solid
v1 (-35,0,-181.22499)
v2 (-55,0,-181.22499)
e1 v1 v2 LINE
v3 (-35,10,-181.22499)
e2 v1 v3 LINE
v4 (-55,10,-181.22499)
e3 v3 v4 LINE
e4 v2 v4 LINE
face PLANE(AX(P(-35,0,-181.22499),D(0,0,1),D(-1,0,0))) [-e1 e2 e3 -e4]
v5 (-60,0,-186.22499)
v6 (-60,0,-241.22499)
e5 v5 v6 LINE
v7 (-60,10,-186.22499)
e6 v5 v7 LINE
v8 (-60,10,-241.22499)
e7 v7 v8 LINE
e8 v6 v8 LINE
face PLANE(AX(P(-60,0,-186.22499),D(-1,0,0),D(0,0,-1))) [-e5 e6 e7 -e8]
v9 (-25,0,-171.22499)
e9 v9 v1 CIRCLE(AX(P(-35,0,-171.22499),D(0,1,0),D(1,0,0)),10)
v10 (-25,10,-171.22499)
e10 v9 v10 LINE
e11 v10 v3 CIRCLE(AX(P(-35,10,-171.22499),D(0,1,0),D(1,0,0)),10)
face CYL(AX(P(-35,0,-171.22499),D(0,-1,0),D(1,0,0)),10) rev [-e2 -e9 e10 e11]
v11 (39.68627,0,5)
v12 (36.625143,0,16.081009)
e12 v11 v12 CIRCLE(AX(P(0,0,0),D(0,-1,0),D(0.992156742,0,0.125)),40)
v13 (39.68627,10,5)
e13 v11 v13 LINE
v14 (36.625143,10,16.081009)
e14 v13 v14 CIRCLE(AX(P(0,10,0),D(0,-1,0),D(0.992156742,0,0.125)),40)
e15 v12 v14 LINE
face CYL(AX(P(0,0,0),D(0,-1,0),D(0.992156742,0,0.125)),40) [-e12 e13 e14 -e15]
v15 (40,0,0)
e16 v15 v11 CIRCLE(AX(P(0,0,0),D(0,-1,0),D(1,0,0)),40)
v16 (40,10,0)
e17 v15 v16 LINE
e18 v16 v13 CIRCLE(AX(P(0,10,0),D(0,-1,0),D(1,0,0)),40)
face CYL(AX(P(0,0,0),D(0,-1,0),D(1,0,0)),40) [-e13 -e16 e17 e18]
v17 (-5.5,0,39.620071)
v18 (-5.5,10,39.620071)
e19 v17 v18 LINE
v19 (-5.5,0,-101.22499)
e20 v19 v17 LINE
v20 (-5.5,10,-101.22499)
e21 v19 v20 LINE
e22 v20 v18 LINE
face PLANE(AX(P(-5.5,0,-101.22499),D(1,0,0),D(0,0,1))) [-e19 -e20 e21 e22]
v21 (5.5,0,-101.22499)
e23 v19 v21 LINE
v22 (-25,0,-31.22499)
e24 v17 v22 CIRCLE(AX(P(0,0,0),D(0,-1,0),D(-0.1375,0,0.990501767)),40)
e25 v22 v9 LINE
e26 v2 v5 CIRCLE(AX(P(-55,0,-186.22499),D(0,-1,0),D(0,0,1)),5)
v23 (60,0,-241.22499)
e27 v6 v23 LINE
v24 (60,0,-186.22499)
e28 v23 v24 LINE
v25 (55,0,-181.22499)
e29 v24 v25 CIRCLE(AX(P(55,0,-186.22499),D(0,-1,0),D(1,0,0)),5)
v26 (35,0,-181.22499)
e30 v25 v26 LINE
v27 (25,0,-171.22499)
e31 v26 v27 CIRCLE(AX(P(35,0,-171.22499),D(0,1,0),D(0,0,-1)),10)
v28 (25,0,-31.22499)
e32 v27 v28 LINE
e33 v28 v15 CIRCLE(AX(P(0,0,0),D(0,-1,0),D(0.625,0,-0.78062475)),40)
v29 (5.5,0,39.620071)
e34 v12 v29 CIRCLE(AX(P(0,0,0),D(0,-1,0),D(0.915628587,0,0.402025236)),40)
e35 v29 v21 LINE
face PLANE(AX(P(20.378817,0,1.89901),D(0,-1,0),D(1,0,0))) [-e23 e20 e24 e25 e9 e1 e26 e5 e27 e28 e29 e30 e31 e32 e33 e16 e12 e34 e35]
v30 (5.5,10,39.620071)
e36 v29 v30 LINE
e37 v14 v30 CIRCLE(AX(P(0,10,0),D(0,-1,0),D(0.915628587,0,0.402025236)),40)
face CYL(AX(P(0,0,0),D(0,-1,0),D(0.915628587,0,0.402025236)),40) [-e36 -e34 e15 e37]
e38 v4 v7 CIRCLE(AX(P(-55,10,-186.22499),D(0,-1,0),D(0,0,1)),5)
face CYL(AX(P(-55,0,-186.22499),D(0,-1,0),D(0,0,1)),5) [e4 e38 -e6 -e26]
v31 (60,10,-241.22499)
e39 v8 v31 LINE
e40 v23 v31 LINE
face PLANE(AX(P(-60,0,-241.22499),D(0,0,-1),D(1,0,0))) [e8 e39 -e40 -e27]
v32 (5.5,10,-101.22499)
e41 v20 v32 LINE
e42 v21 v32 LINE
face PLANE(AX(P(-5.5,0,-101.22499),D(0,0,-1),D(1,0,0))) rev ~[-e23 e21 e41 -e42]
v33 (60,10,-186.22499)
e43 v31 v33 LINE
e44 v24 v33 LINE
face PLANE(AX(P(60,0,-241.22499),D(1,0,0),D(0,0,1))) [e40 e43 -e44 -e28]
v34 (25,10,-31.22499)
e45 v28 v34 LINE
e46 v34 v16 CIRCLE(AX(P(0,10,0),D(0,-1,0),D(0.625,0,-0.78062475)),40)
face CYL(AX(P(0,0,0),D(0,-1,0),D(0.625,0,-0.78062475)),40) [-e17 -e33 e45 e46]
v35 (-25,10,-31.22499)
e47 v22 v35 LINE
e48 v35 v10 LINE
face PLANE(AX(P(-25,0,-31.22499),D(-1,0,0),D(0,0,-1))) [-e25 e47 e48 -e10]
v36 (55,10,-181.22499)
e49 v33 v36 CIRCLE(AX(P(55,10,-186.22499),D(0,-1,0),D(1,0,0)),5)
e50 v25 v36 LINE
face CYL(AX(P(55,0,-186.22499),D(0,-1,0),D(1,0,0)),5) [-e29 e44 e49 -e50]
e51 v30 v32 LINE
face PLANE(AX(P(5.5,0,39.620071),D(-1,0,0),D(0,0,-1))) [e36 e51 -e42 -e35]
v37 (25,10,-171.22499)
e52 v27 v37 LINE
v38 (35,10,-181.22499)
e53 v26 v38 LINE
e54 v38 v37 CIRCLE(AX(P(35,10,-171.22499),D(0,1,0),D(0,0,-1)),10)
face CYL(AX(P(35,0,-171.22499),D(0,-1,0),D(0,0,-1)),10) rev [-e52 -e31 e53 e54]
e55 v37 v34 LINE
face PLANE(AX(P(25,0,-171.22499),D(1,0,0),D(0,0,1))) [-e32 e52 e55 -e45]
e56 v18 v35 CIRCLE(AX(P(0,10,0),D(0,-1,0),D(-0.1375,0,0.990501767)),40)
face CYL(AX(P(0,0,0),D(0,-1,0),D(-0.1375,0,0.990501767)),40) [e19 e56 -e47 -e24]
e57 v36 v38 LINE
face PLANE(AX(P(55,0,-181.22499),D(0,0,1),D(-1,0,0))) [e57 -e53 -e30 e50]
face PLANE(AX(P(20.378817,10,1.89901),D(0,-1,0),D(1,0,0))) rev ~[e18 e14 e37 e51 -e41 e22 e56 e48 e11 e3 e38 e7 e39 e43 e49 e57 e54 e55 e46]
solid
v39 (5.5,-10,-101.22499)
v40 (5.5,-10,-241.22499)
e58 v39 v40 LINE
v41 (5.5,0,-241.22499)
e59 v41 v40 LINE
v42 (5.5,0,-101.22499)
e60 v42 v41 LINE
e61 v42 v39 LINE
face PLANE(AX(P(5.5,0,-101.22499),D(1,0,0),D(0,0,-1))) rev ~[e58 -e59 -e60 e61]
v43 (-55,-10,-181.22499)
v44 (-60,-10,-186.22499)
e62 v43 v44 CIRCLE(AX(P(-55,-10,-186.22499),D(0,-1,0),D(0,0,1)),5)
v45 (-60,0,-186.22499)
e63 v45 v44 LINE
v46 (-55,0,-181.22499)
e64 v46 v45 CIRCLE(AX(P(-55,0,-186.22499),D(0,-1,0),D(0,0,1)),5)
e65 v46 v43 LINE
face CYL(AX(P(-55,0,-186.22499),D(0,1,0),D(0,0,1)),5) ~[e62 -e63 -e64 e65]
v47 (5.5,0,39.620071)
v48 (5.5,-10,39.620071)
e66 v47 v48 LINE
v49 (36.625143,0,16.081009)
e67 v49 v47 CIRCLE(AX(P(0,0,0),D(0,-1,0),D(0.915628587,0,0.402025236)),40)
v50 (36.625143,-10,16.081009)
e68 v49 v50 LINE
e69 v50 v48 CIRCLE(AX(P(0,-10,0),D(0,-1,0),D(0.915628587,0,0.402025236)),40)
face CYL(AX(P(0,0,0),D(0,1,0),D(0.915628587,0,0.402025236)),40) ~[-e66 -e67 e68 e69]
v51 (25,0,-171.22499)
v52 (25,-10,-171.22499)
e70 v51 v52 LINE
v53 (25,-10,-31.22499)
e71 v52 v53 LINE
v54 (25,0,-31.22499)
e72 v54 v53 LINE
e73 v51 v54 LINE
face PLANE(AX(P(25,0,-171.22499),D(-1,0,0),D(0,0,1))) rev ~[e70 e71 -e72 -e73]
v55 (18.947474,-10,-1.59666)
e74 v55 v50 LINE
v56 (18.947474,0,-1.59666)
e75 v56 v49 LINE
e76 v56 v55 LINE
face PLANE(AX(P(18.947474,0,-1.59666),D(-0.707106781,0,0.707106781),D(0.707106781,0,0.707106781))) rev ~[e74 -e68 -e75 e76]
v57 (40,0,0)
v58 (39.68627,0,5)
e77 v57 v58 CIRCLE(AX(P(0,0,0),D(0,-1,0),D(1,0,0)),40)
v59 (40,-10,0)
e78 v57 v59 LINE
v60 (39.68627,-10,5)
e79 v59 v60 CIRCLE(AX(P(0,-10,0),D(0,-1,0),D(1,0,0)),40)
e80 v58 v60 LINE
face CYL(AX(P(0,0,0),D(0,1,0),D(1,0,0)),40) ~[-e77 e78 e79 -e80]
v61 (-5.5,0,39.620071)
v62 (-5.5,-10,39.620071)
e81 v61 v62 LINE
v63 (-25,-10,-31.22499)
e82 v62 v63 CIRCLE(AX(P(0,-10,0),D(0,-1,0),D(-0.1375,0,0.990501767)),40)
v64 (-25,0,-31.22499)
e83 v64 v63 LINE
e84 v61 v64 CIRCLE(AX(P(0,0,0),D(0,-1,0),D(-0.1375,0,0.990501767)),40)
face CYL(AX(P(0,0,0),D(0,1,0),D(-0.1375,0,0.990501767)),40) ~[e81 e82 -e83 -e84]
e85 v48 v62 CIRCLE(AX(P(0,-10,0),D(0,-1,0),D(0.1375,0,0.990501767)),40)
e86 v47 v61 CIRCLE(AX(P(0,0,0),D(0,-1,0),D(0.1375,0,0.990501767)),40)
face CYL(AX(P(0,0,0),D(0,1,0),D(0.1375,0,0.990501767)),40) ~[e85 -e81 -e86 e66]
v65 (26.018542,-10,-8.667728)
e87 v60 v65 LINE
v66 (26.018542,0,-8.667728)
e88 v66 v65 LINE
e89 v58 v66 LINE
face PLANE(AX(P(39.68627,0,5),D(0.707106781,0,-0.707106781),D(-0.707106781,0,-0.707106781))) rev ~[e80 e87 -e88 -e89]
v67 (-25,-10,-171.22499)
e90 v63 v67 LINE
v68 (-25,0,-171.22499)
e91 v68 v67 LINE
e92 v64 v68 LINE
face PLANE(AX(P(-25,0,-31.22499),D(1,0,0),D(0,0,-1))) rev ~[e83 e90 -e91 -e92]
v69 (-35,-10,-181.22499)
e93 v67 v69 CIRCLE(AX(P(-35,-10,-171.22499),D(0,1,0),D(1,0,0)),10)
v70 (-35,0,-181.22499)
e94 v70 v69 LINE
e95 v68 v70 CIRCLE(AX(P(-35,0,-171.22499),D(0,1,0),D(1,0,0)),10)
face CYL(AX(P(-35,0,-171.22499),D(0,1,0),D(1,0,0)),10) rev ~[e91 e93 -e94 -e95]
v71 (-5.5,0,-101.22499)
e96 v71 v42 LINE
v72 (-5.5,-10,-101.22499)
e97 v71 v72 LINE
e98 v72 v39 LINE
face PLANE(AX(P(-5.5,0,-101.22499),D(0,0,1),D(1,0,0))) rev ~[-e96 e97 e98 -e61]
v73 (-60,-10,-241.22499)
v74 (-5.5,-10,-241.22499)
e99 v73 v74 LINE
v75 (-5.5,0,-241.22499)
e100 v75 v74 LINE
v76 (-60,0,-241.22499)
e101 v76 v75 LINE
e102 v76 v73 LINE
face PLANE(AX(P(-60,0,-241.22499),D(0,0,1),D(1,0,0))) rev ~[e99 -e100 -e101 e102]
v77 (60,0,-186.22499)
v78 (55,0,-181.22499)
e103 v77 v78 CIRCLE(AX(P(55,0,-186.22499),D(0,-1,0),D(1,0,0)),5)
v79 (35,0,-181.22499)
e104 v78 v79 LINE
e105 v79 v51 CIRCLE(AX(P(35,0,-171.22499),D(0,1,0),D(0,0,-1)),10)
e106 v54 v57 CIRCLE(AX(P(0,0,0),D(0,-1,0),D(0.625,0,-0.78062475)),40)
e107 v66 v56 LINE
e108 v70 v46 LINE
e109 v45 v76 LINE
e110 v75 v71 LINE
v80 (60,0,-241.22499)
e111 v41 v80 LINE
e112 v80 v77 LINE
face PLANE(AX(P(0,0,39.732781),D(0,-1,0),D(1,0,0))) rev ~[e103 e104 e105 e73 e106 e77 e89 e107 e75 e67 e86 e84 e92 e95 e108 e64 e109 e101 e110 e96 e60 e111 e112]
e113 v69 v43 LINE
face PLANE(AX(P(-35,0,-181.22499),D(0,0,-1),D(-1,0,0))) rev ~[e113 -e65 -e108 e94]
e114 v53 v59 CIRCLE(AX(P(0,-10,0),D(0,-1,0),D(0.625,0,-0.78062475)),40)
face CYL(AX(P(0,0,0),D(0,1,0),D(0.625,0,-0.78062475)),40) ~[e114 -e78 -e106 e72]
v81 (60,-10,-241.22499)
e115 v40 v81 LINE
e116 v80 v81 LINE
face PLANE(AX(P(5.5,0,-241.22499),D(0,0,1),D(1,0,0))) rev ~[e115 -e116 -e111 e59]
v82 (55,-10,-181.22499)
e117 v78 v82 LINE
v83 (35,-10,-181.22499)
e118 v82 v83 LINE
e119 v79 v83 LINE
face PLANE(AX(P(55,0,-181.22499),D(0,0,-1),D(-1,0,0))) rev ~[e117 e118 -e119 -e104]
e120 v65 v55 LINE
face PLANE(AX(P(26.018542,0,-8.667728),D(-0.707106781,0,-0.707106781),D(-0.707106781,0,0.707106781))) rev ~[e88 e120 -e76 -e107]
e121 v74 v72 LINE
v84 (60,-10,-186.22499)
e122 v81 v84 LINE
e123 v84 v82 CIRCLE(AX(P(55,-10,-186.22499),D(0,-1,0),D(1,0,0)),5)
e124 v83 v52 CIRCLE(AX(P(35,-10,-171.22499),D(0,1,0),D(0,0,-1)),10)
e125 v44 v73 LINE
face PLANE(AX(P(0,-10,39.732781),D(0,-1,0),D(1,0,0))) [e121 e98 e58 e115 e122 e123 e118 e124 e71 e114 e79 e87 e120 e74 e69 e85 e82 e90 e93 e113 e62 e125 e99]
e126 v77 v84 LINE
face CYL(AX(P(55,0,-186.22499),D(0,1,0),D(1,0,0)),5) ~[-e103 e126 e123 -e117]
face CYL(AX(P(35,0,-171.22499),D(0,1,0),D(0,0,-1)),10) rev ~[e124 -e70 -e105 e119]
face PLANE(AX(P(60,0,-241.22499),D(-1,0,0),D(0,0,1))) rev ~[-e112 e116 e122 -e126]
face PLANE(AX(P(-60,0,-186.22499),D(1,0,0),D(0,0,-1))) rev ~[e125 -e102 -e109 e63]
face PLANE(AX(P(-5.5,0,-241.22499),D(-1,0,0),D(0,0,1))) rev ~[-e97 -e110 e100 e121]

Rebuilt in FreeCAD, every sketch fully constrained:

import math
import FreeCAD as App
import Part
import Sketcher
from FreeCAD import Vector
Q = App.Units.Quantity

doc = App.newDocument("Part")
body = doc.addObject("PartDesign::Body", "Body")

sketch1 = body.newObject("Sketcher::SketchObject", "Sketch")
sketch1.AttachmentSupport = (doc.getObject("XZ_Plane"), [""])
sketch1.MapMode = "FlatFace"
sketch1.addGeometry([
    Part.ArcOfCircle(Part.Circle(Vector(0, 0, 0), Vector(0, 0, 1), 40), math.radians(82.1), math.radians(97.9)),
    Part.ArcOfCircle(Part.Circle(Vector(0, 0, 0), Vector(0, 0, 1), 40), math.radians(98), math.radians(231)),
    Part.LineSegment(Vector(-25, -31, 0), Vector(-25, -171, 0)),
    Part.ArcOfCircle(Part.Circle(Vector(-35, -171, 0), Vector(0, 0, 1), 10), math.radians(-90), math.radians(0)),
    Part.LineSegment(Vector(-35, -181, 0), Vector(-55, -181, 0)),
    Part.ArcOfCircle(Part.Circle(Vector(-55, -186, 0), Vector(0, 0, 1), 5), math.radians(90), math.radians(180)),
    Part.LineSegment(Vector(-60, -186, 0), Vector(-60, -241, 0)),
    Part.LineSegment(Vector(-60, -241, 0), Vector(-6, -241, 0)),
    Part.LineSegment(Vector(-6, -241, 0), Vector(-6, -101, 0)),
    Part.LineSegment(Vector(-6, -101, 0), Vector(6, -101, 0)),
    Part.LineSegment(Vector(6, -101, 0), Vector(6, -241, 0)),
    Part.LineSegment(Vector(6, -241, 0), Vector(60, -241, 0)),
    Part.LineSegment(Vector(60, -241, 0), Vector(60, -186, 0)),
    Part.ArcOfCircle(Part.Circle(Vector(55, -186, 0), Vector(0, 0, 1), 5), math.radians(0), math.radians(90)),
    Part.LineSegment(Vector(55, -181, 0), Vector(35, -181, 0)),
    Part.ArcOfCircle(Part.Circle(Vector(35, -171, 0), Vector(0, 0, 1), 10), math.radians(180), math.radians(270)),
    Part.LineSegment(Vector(25, -171, 0), Vector(25, -31, 0)),
    Part.ArcOfCircle(Part.Circle(Vector(0, 0, 0), Vector(0, 0, 1), 40), math.radians(-51), math.radians(0)),
    Part.ArcOfCircle(Part.Circle(Vector(0, 0, 0), Vector(0, 0, 1), 40), math.radians(0), math.radians(7.18)),
    Part.LineSegment(Vector(40, 5, 0), Vector(26, -9, 0)),
    Part.LineSegment(Vector(26, -9, 0), Vector(19, -2, 0)),
    Part.LineSegment(Vector(19, -2, 0), Vector(37, 16, 0)),
    Part.ArcOfCircle(Part.Circle(Vector(0, 0, 0), Vector(0, 0, 1), 40), math.radians(24), math.radians(82)),
], False)
sketch1.addConstraint([
    Sketcher.Constraint("Tangent", 0, 2, 1, 1),
    Sketcher.Constraint("Coincident", 1, 2, 2, 1),
    Sketcher.Constraint("Tangent", 2, 2, 3, 2),
    Sketcher.Constraint("Tangent", 3, 1, 4, 1),
    Sketcher.Constraint("Tangent", 4, 2, 5, 1),
    Sketcher.Constraint("Tangent", 5, 2, 6, 1),
    Sketcher.Constraint("Coincident", 6, 2, 7, 1),
    Sketcher.Constraint("Coincident", 7, 2, 8, 1),
    Sketcher.Constraint("Coincident", 8, 2, 9, 1),
    Sketcher.Constraint("Coincident", 9, 2, 10, 1),
    Sketcher.Constraint("Coincident", 10, 2, 11, 1),
    Sketcher.Constraint("Coincident", 11, 2, 12, 1),
    Sketcher.Constraint("Tangent", 12, 2, 13, 1),
    Sketcher.Constraint("Tangent", 13, 2, 14, 1),
    Sketcher.Constraint("Tangent", 14, 2, 15, 2),
    Sketcher.Constraint("Tangent", 15, 1, 16, 1),
    Sketcher.Constraint("Coincident", 16, 2, 17, 1),
    Sketcher.Constraint("Tangent", 17, 2, 18, 1),
    Sketcher.Constraint("Coincident", 18, 2, 19, 1),
    Sketcher.Constraint("Coincident", 19, 2, 20, 1),
    Sketcher.Constraint("Coincident", 20, 2, 21, 1),
    Sketcher.Constraint("Coincident", 21, 2, 22, 1),
    Sketcher.Constraint("Tangent", 22, 2, 0, 1),
    Sketcher.Constraint("Vertical", 2),
    Sketcher.Constraint("Horizontal", 4),
    Sketcher.Constraint("Vertical", 6),
    Sketcher.Constraint("Horizontal", 7),
    Sketcher.Constraint("Vertical", 8),
    Sketcher.Constraint("Horizontal", 9),
    Sketcher.Constraint("Vertical", 10),
    Sketcher.Constraint("Horizontal", 11),
    Sketcher.Constraint("Vertical", 12),
    Sketcher.Constraint("Horizontal", 14),
    Sketcher.Constraint("Vertical", 16),
    Sketcher.Constraint("Coincident", 0, 3, -1, 1),
    Sketcher.Constraint("Coincident", 17, 3, -1, 1),
    Sketcher.Constraint("Equal", 0, 1),
    Sketcher.Constraint("Equal", 5, 13),
    Sketcher.Constraint("Equal", 3, 15),
    Sketcher.Constraint("Equal", 1, 17),
    Sketcher.Constraint("Equal", 17, 18),
    Sketcher.Constraint("Equal", 18, 22),
    Sketcher.Constraint("Symmetric", 5, 3, 13, 3, -2),
    Sketcher.Constraint("Symmetric", 7, 2, 10, 2, -2),
    Sketcher.Constraint("PointOnObject", 17, 2, -1),
    Sketcher.Constraint("Perpendicular", 19, 20),
    Sketcher.Constraint("Perpendicular", 20, 21),
    Sketcher.Constraint("Horizontal", 1, 2, 16, 2),
    Sketcher.Constraint("Horizontal", 0, 2, 22, 2),
    Sketcher.Constraint("Vertical", 0, 2, 7, 2),
    Sketcher.Constraint("Equal", 2, 8),
    Sketcher.Constraint("Radius", 0, Q("40 mm")),
    Sketcher.Constraint("Radius", 3, Q("10 mm")),
    Sketcher.Constraint("Radius", 5, Q("5 mm")),
    Sketcher.Constraint("DistanceX", 4, 2, 4, 1, Q("20 mm")),
    Sketcher.Constraint("DistanceX", 9, 1, 9, 2, Q("11 mm")),
    Sketcher.Constraint("DistanceY", 2, 2, 2, 1, Q("140 mm")),
    Sketcher.Constraint("DistanceY", 6, 2, 6, 1, Q("55 mm")),
    Sketcher.Constraint("Angle", 19, Q("-135 deg")),
    Sketcher.Constraint("Distance", 20, Q("10 mm")),
    Sketcher.Constraint("Distance", 21, Q("25 mm")),
    Sketcher.Constraint("DistanceX", 7, 1, 7, 2, Q("54.5 mm")),
    Sketcher.Constraint("DistanceY", -1, 1, 18, 2, Q("5 mm")),
])
pad1 = body.newObject("PartDesign::Pad", "Pad")
pad1.Profile = sketch1
pad1.Length = 10
body2 = doc.addObject("PartDesign::Body", "Body001")

sketch2 = body2.newObject("Sketcher::SketchObject", "Sketch001")
sketch2.AttachmentSupport = (doc.getObject("XZ_Plane001"), [""])
sketch2.MapMode = "FlatFace"
sketch2.addGeometry([
    Part.ArcOfCircle(Part.Circle(Vector(0, 0, 0), Vector(0, 0, 1), 40), math.radians(-51), math.radians(0)),
    Part.ArcOfCircle(Part.Circle(Vector(0, 0, 0), Vector(0, 0, 1), 40), math.radians(0), math.radians(7.18)),
    Part.ArcOfCircle(Part.Circle(Vector(0, 0, 0), Vector(0, 0, 1), 40), math.radians(7.18), math.radians(23.7)),
    Part.ArcOfCircle(Part.Circle(Vector(0, 0, 0), Vector(0, 0, 1), 40), math.radians(24), math.radians(82)),
    Part.LineSegment(Vector(6, 40, 0), Vector(6, -101, 0)),
    Part.LineSegment(Vector(6, -101, 0), Vector(-6, -101, 0)),
    Part.LineSegment(Vector(-6, -101, 0), Vector(-6, 40, 0)),
    Part.ArcOfCircle(Part.Circle(Vector(0, 0, 0), Vector(0, 0, 1), 40), math.radians(98), math.radians(231)),
    Part.LineSegment(Vector(-25, -31, 0), Vector(-25, -171, 0)),
    Part.ArcOfCircle(Part.Circle(Vector(-35, -171, 0), Vector(0, 0, 1), 10), math.radians(-90), math.radians(0)),
    Part.LineSegment(Vector(-35, -181, 0), Vector(-55, -181, 0)),
    Part.ArcOfCircle(Part.Circle(Vector(-55, -186, 0), Vector(0, 0, 1), 5), math.radians(90), math.radians(180)),
    Part.LineSegment(Vector(-60, -186, 0), Vector(-60, -241, 0)),
    Part.LineSegment(Vector(-60, -241, 0), Vector(60, -241, 0)),
    Part.LineSegment(Vector(60, -241, 0), Vector(60, -186, 0)),
    Part.ArcOfCircle(Part.Circle(Vector(55, -186, 0), Vector(0, 0, 1), 5), math.radians(0), math.radians(90)),
    Part.LineSegment(Vector(55, -181, 0), Vector(35, -181, 0)),
    Part.ArcOfCircle(Part.Circle(Vector(35, -171, 0), Vector(0, 0, 1), 10), math.radians(180), math.radians(270)),
    Part.LineSegment(Vector(25, -171, 0), Vector(25, -31, 0)),
], False)
sketch2.addConstraint([
    Sketcher.Constraint("Tangent", 0, 2, 1, 1),
    Sketcher.Constraint("Tangent", 1, 2, 2, 1),
    Sketcher.Constraint("Tangent", 2, 2, 3, 1),
    Sketcher.Constraint("Coincident", 3, 2, 4, 1),
    Sketcher.Constraint("Coincident", 4, 2, 5, 1),
    Sketcher.Constraint("Coincident", 5, 2, 6, 1),
    Sketcher.Constraint("Coincident", 6, 2, 7, 1),
    Sketcher.Constraint("Coincident", 7, 2, 8, 1),
    Sketcher.Constraint("Tangent", 8, 2, 9, 2),
    Sketcher.Constraint("Tangent", 9, 1, 10, 1),
    Sketcher.Constraint("Tangent", 10, 2, 11, 1),
    Sketcher.Constraint("Tangent", 11, 2, 12, 1),
    Sketcher.Constraint("Coincident", 12, 2, 13, 1),
    Sketcher.Constraint("Coincident", 13, 2, 14, 1),
    Sketcher.Constraint("Tangent", 14, 2, 15, 1),
    Sketcher.Constraint("Tangent", 15, 2, 16, 1),
    Sketcher.Constraint("Tangent", 16, 2, 17, 2),
    Sketcher.Constraint("Tangent", 17, 1, 18, 1),
    Sketcher.Constraint("Coincident", 18, 2, 0, 1),
    Sketcher.Constraint("Vertical", 4),
    Sketcher.Constraint("Horizontal", 5),
    Sketcher.Constraint("Vertical", 6),
    Sketcher.Constraint("Vertical", 8),
    Sketcher.Constraint("Horizontal", 10),
    Sketcher.Constraint("Vertical", 12),
    Sketcher.Constraint("Horizontal", 13),
    Sketcher.Constraint("Vertical", 14),
    Sketcher.Constraint("Horizontal", 16),
    Sketcher.Constraint("Vertical", 18),
    Sketcher.Constraint("Coincident", 0, 3, -1, 1),
    Sketcher.Constraint("Coincident", 2, 3, -1, 1),
    Sketcher.Constraint("Coincident", 7, 3, -1, 1),
    Sketcher.Constraint("Equal", 2, 3),
    Sketcher.Constraint("Equal", 3, 7),
    Sketcher.Constraint("Equal", 11, 15),
    Sketcher.Constraint("Equal", 9, 17),
    Sketcher.Constraint("Symmetric", 11, 3, 15, 3, -2),
    Sketcher.Constraint("PointOnObject", 0, 2, -1),
    Sketcher.Constraint("Horizontal", 3, 2, 6, 2),
    Sketcher.Constraint("Horizontal", 7, 2, 18, 2),
    Sketcher.Constraint("Radius", 0, Q("40 mm")),
    Sketcher.Constraint("Radius", 9, Q("10 mm")),
    Sketcher.Constraint("Radius", 11, Q("5 mm")),
    Sketcher.Constraint("DistanceX", 5, 2, 5, 1, Q("11 mm")),
    Sketcher.Constraint("DistanceX", 10, 2, 10, 1, Q("20 mm")),
    Sketcher.Constraint("DistanceX", 13, 1, 13, 2, Q("120 mm")),
    Sketcher.Constraint("DistanceY", 8, 2, 8, 1, Q("140 mm")),
    Sketcher.Constraint("DistanceY", 12, 2, 12, 1, Q("55 mm")),
    Sketcher.Constraint("DistanceY", -1, 1, 1, 2, Q("5 mm")),
    Sketcher.Constraint("DistanceY", 17, 3, 4, 2, Q("70 mm")),
    Sketcher.Constraint("DistanceY", -1, 1, 2, 2, Q("16.081009 mm")),
])
pad2 = body2.newObject("PartDesign::Pad", "Pad001")
pad2.Profile = sketch2
pad2.Length = 10
pad2.Reversed = True

doc.recompute()
